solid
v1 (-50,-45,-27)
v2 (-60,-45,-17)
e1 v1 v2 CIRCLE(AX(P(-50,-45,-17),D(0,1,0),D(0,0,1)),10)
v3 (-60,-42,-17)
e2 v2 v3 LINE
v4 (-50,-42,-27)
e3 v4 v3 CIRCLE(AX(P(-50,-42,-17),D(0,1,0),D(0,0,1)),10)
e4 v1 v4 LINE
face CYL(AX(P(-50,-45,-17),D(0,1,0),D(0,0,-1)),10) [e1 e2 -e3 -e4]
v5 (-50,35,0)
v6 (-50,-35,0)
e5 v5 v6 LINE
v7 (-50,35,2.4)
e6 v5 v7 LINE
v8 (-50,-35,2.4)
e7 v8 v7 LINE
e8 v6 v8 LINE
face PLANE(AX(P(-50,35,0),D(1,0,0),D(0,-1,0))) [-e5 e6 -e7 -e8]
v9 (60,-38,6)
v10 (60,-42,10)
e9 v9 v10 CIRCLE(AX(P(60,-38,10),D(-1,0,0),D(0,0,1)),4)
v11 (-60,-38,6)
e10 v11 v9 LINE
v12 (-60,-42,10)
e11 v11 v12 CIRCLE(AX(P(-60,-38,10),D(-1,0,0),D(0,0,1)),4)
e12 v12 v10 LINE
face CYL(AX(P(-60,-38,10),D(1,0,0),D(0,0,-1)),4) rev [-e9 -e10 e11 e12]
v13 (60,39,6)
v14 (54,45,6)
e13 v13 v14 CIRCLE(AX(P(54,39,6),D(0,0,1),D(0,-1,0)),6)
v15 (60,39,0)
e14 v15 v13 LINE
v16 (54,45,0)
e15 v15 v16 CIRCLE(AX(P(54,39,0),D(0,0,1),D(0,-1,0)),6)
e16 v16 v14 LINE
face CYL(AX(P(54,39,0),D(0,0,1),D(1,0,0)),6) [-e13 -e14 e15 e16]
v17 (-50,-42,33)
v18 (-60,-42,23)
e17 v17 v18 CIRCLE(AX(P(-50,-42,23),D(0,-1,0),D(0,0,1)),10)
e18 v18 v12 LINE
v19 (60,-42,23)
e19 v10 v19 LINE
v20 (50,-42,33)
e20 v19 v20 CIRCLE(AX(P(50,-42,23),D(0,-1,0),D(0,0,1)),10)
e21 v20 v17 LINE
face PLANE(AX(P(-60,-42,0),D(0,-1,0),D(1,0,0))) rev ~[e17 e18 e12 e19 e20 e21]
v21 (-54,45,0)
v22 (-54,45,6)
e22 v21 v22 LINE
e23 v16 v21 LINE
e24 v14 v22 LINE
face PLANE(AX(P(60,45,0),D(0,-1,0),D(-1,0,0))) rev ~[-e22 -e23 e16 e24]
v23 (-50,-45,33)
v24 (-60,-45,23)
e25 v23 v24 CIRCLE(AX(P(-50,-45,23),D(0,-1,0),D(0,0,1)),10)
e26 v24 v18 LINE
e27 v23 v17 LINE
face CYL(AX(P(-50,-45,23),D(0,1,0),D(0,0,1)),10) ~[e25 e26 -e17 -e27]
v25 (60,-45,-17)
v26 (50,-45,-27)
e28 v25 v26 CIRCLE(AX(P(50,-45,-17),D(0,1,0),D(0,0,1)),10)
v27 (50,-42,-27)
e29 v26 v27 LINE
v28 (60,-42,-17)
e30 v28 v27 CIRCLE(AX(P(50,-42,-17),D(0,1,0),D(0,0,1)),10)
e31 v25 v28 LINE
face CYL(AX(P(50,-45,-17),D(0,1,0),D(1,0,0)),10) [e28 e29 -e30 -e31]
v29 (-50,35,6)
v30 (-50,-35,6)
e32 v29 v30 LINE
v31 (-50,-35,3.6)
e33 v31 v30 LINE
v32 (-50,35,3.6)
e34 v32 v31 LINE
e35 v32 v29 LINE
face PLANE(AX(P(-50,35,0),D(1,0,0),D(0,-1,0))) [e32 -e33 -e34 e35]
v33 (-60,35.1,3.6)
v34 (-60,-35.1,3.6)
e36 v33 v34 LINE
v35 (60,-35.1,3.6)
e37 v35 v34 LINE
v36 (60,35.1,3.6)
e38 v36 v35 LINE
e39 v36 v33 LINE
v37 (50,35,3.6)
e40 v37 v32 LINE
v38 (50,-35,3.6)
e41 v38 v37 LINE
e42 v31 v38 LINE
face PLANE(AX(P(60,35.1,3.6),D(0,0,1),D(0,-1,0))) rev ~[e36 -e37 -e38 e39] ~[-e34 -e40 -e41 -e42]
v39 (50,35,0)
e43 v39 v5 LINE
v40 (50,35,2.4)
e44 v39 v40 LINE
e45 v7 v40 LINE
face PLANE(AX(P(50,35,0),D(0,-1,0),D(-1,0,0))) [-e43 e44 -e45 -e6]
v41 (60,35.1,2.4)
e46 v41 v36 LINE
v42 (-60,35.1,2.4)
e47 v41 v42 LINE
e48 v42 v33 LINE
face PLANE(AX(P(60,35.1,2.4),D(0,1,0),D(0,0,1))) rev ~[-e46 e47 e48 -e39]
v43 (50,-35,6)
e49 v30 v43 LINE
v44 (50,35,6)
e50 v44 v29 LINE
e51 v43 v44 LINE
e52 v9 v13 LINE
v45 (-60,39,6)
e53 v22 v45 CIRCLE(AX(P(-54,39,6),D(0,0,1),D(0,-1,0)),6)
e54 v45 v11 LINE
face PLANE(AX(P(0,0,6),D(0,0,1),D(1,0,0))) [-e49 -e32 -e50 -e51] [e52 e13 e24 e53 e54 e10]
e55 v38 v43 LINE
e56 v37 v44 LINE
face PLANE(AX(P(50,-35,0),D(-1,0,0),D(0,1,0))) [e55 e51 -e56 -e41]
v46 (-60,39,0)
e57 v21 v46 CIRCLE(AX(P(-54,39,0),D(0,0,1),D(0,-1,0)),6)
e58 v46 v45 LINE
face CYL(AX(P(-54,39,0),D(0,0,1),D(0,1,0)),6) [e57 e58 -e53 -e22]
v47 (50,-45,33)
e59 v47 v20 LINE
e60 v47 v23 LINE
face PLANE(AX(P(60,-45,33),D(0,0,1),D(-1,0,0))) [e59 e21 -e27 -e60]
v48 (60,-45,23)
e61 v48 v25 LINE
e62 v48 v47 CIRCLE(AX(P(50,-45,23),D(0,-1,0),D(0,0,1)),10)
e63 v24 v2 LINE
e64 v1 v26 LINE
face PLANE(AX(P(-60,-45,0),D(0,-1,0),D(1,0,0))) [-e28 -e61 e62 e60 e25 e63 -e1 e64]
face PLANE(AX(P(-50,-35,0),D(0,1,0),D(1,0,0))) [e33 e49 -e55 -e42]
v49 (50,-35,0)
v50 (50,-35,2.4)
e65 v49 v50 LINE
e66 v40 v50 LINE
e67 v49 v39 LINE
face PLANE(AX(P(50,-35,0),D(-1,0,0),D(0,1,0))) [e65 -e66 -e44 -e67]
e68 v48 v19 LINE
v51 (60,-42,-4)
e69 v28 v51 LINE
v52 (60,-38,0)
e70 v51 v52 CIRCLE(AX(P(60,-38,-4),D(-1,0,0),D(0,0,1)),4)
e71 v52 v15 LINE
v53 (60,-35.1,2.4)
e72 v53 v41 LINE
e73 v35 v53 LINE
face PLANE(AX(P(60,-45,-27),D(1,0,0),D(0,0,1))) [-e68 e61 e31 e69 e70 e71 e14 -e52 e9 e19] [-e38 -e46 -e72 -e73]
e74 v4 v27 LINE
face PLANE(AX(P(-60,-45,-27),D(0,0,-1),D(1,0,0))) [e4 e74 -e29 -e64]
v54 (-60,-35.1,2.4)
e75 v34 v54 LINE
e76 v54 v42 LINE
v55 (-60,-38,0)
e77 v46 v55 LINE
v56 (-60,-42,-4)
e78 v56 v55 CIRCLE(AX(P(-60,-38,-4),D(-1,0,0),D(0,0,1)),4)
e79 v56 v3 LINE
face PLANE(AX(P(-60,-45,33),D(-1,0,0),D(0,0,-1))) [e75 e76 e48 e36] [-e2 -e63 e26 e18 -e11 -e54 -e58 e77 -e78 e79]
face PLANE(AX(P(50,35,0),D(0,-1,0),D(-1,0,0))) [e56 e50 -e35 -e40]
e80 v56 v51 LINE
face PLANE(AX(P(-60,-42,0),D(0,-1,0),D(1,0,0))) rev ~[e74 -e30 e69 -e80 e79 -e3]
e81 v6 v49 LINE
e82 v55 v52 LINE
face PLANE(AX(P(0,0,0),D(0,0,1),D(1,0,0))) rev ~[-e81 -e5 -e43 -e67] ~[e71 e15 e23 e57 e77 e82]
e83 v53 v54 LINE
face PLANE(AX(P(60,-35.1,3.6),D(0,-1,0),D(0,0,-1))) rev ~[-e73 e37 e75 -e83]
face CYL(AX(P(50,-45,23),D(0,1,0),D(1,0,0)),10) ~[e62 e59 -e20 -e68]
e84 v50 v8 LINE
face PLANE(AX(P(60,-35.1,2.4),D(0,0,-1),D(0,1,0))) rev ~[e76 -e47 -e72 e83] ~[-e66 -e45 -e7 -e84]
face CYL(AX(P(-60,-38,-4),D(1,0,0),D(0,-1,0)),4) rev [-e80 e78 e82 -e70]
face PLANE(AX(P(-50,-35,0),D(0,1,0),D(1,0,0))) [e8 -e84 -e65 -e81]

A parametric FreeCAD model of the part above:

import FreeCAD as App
import Part
import Sketcher

V = App.Vector


def edges_at(feature, points):
    """Names of the edges that pass closest to the given points."""
    edges = feature.Shape.Edges
    near = lambda p: min(range(len(edges)), key=lambda i: edges[i].distToShape(Part.Vertex(*p))[0])
    return sorted({f"Edge{near(p) + 1}" for p in points})


def add_polygon(sketch, points):
    """Adds a closed chain of lines whose ends are joined by coincident constraints."""
    first, n = sketch.GeometryCount, len(points)
    for a, b in zip(points, points[1:] + points[:1]):
        sketch.addGeometry(Part.LineSegment(App.Vector(*a, 0), App.Vector(*b, 0)), False)
    for i in range(n):
        sketch.addConstraint(Sketcher.Constraint("Coincident", first + i, 2, first + (i + 1) % n, 1))

doc = App.newDocument("Part")
body = doc.addObject("PartDesign::Body", "Body")

# Sketch on XY plane
sketch1 = doc.addObject("Sketcher::SketchObject", "Sketch")
body.addObject(sketch1)
sketch1.AttachmentSupport = (doc.XY_Plane, [""])
sketch1.MapMode = "FlatFace"
add_polygon(sketch1, [(-60, 45), (-60, -45), (60, -45), (60, 45)])  # lines 0-3
add_polygon(sketch1, [(50, -35), (-50, -35), (-50, 35), (50, 35)])  # lines 4-7
sketch1.addConstraint([
    Sketcher.Constraint("Vertical", 0),
    Sketcher.Constraint("Horizontal", 1),
    Sketcher.Constraint("Vertical", 2),
    Sketcher.Constraint("Horizontal", 3),
    Sketcher.Constraint("Horizontal", 4),
    Sketcher.Constraint("Vertical", 5),
    Sketcher.Constraint("Horizontal", 6),
    Sketcher.Constraint("Vertical", 7),
    Sketcher.Constraint("Symmetric", 0, 2, 2, 2, -1, 1),
    Sketcher.Constraint("Symmetric", 4, 2, 6, 2, -1, 1),
    Sketcher.Constraint("DistanceX", 1, 1, 1, 2, 120.0),
    Sketcher.Constraint("DistanceX", 4, 2, 4, 1, 100.0),
    Sketcher.Constraint("DistanceY", 0, 2, 0, 1, 90.0),
    Sketcher.Constraint("DistanceY", 5, 1, 5, 2, 70.0),
])
pad1 = doc.addObject("PartDesign::Pad", "Pad")
body.addObject(pad1)
pad1.Profile = sketch1
pad1.Length = 6

# Sketch on YZ plane
sketch2 = doc.addObject("Sketcher::SketchObject", "Sketch001")
body.addObject(sketch2)
sketch2.AttachmentSupport = (doc.YZ_Plane, [""])
sketch2.MapMode = "FlatFace"
sketch2.AttachmentOffset = App.Placement(V(0, 0, 60), App.Rotation())
add_polygon(sketch2, [(-35.1, 2.4), (35.1, 2.4), (35.1, 3.6), (-35.1, 3.6)])  # lines 0-3
sketch2.addConstraint([
    Sketcher.Constraint("Horizontal", 0),
    Sketcher.Constraint("Vertical", 1),
    Sketcher.Constraint("Horizontal", 2),
    Sketcher.Constraint("Vertical", 3),
    Sketcher.Constraint("DistanceX", 0, 1, 0, 2, 70.2),
    Sketcher.Constraint("DistanceY", 1, 1, 1, 2, 1.2),
    Sketcher.Constraint("DistanceX", -1, 1, 0, 2, 35.1),
    Sketcher.Constraint("DistanceY", -1, 1, 0, 2, 2.4),
])
pocket1 = doc.addObject("PartDesign::Pocket", "Pocket")
body.addObject(pocket1)
pocket1.Profile = sketch2
pocket1.Length = 120

# Sketch on XZ plane
sketch3 = doc.addObject("Sketcher::SketchObject", "Sketch002")
body.addObject(sketch3)
sketch3.AttachmentSupport = (doc.XZ_Plane, [""])
sketch3.MapMode = "FlatFace"
sketch3.AttachmentOffset = App.Placement(V(0, 0, 45), App.Rotation())
add_polygon(sketch3, [(60, -27), (60, 33), (-60, 33), (-60, -27)])  # lines 0-3
sketch3.addConstraint([
    Sketcher.Constraint("Vertical", 0),
    Sketcher.Constraint("Horizontal", 1),
    Sketcher.Constraint("Vertical", 2),
    Sketcher.Constraint("Horizontal", 3),
    Sketcher.Constraint("DistanceX", 1, 2, 1, 1, 120.0),
    Sketcher.Constraint("DistanceY", 0, 1, 0, 2, 60.0),
    Sketcher.Constraint("DistanceX", -1, 1, 0, 2, 60.0),
    Sketcher.Constraint("DistanceY", -1, 1, 0, 2, 33.0),
])
pad2 = doc.addObject("PartDesign::Pad", "Pad001")
body.addObject(pad2)
pad2.Profile = sketch3
pad2.Length = 3
pad2.Reversed = True
doc.recompute()

fillet = doc.addObject("PartDesign::Fillet", "Fillet")
body.addObject(fillet)
fillet.Base = (pad2, edges_at(pad2, [(0, -42, 6), (0, -42, 0)]))
fillet.Radius = 4
doc.recompute()

fillet2 = doc.addObject("PartDesign::Fillet", "Fillet001")
body.addObject(fillet2)
fillet2.Base = (fillet, edges_at(fillet, [(-60, 45, 3), (60, 45, 3)]))
fillet2.Radius = 6
doc.recompute()

fillet3 = doc.addObject("PartDesign::Fillet", "Fillet002")
body.addObject(fillet3)
fillet3.Base = (fillet2, edges_at(fillet2, [
    (60, -43.5, 33),
    (60, -43.5, -27),
    (-60, -43.5, 33),
    (-60, -43.5, -27),
]))
fillet3.Radius = 10

doc.recompute()
